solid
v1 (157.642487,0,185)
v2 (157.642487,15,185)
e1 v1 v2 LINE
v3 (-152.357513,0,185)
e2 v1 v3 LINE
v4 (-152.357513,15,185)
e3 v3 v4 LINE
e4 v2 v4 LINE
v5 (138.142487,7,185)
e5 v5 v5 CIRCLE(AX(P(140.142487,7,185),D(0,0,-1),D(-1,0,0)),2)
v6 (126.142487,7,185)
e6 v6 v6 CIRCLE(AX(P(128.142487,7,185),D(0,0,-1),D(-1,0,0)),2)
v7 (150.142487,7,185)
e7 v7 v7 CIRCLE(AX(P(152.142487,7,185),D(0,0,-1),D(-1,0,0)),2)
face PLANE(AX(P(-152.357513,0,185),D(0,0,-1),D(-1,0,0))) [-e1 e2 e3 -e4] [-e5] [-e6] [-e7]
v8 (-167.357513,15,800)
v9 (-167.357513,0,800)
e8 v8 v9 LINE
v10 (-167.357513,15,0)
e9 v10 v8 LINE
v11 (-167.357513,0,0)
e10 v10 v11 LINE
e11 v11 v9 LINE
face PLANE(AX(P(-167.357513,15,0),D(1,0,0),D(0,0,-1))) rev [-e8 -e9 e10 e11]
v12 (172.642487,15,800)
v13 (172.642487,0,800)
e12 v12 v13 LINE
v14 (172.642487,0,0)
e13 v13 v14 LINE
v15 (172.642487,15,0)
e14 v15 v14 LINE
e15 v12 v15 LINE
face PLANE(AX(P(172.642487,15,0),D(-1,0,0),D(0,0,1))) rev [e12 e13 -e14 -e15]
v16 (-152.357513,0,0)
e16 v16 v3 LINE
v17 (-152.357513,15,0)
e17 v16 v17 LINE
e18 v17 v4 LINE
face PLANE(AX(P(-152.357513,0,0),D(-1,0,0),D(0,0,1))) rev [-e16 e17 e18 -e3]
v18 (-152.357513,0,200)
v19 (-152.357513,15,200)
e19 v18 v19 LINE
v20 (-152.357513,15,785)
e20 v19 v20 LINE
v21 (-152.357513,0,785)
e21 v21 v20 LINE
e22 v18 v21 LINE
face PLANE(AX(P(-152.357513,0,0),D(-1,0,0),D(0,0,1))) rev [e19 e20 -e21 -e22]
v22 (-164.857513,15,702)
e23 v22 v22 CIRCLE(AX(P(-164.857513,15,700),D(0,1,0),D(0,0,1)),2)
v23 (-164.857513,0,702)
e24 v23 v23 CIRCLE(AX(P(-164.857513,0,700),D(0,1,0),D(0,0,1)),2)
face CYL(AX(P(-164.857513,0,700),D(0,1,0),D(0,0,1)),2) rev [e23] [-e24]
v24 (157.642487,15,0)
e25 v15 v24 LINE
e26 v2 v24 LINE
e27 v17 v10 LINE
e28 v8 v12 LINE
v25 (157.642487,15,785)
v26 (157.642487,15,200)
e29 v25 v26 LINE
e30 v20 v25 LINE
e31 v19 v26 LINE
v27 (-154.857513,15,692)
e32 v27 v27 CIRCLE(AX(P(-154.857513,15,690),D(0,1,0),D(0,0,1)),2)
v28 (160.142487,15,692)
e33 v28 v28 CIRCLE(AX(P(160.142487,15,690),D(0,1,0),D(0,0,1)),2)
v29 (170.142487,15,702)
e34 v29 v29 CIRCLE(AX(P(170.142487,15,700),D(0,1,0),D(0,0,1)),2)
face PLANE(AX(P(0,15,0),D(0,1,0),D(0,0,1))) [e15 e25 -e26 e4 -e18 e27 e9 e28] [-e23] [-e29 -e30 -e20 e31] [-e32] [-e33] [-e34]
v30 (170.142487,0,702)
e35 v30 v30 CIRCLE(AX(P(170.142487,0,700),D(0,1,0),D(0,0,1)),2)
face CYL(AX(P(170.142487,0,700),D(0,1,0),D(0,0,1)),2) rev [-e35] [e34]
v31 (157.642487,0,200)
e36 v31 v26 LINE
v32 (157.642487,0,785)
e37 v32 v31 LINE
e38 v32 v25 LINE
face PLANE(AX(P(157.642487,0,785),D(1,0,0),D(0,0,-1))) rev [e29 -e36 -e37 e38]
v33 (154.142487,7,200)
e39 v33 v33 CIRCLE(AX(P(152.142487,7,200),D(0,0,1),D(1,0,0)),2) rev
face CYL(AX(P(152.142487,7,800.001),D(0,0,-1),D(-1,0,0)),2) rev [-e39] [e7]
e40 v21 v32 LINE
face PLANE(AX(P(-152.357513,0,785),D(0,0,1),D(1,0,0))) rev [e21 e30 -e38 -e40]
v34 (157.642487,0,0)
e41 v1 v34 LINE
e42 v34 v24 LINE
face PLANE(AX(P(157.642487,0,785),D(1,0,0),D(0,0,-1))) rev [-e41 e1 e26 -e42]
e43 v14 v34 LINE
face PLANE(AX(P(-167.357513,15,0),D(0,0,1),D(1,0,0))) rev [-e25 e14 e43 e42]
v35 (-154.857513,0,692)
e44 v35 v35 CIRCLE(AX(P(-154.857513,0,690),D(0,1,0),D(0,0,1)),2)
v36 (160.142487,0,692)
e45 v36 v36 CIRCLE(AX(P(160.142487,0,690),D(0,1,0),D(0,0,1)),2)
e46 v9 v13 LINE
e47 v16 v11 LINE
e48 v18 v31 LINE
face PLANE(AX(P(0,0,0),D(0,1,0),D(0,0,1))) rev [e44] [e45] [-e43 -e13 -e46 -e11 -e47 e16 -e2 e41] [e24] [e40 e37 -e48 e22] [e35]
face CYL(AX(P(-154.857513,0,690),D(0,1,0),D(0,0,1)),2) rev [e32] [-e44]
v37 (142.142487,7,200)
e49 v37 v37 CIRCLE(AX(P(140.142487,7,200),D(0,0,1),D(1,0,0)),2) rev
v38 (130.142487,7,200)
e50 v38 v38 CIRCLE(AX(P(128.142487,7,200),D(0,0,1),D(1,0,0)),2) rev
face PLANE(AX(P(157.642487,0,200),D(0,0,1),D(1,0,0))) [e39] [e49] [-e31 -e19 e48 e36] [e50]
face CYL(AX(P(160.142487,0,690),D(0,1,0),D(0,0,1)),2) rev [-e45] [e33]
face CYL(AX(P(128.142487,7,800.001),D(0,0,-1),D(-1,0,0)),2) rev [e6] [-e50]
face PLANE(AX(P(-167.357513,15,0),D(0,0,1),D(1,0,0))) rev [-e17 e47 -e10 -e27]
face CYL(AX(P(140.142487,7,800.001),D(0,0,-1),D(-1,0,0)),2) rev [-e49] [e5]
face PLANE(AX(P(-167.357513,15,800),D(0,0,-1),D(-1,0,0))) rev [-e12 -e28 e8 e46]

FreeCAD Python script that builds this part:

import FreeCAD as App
import Part
import Sketcher


def add_polygon(sketch, points):
    """Adds a closed chain of lines whose ends are joined by coincident constraints."""
    first, n = sketch.GeometryCount, len(points)
    for a, b in zip(points, points[1:] + points[:1]):
        sketch.addGeometry(Part.LineSegment(App.Vector(*a, 0), App.Vector(*b, 0)), False)
    for i in range(n):
        sketch.addConstraint(Sketcher.Constraint("Coincident", first + i, 2, first + (i + 1) % n, 1))

doc = App.newDocument("Part")
body = doc.addObject("PartDesign::Body", "Body")

# Sketch on XZ plane
sketch1 = doc.addObject("Sketcher::SketchObject", "Sketch")
body.addObject(sketch1)
sketch1.AttachmentSupport = (doc.XZ_Plane, [""])
sketch1.MapMode = "FlatFace"
add_polygon(sketch1, [(-167, 0), (-167, 800), (173, 800), (173, 0)])  # lines 0-3
sketch1.addConstraint([
    Sketcher.Constraint("Vertical", 0),
    Sketcher.Constraint("Horizontal", 1),
    Sketcher.Constraint("Vertical", 2),
    Sketcher.Constraint("Horizontal", 3),
    Sketcher.Constraint("PointOnObject", 2, 2, -1),
    Sketcher.Constraint("DistanceX", 1, 1, 1, 2, 340.0),
    Sketcher.Constraint("DistanceY", 0, 1, 0, 2, 800.0),
    Sketcher.Constraint("DistanceX", 0, 2, -1, 1, 167.357513),
])
pad1 = doc.addObject("PartDesign::Pad", "Pad")
body.addObject(pad1)
pad1.Profile = sketch1
pad1.Length = 15
pad1.Reversed = True

# Sketch on XZ plane
sketch2 = doc.addObject("Sketcher::SketchObject", "Sketch001")
body.addObject(sketch2)
sketch2.AttachmentSupport = (doc.XZ_Plane, [""])
sketch2.MapMode = "FlatFace"
sketch2.AttachmentOffset = App.Placement(App.Vector(0, 0, -15), App.Rotation())
add_polygon(sketch2, [(-152, 0), (-152, 785), (158, 785), (158, 0)])  # lines 0-3
sketch2.addConstraint([
    Sketcher.Constraint("Vertical", 0),
    Sketcher.Constraint("Horizontal", 1),
    Sketcher.Constraint("Vertical", 2),
    Sketcher.Constraint("Horizontal", 3),
    Sketcher.Constraint("PointOnObject", 2, 2, -1),
    Sketcher.Constraint("DistanceX", 1, 1, 1, 2, 310.0),
    Sketcher.Constraint("DistanceY", 0, 1, 0, 2, 785.0),
    Sketcher.Constraint("DistanceX", 0, 2, -1, 1, 152.357513),
])
pocket1 = doc.addObject("PartDesign::Pocket", "Pocket")
body.addObject(pocket1)
pocket1.Profile = sketch2
pocket1.Length = 15
pocket1.Reversed = True

# Sketch on XZ plane
sketch3 = doc.addObject("Sketcher::SketchObject", "Sketch002")
body.addObject(sketch3)
sketch3.AttachmentSupport = (doc.XZ_Plane, [""])
sketch3.MapMode = "FlatFace"
sketch3.AttachmentOffset = App.Placement(App.Vector(0, 0, -15), App.Rotation())
add_polygon(sketch3, [(-152, 185), (-152, 200), (158, 200), (158, 185)])  # lines 0-3
sketch3.addConstraint([
    Sketcher.Constraint("Vertical", 0),
    Sketcher.Constraint("Horizontal", 1),
    Sketcher.Constraint("Vertical", 2),
    Sketcher.Constraint("Horizontal", 3),
    Sketcher.Constraint("DistanceX", 1, 1, 1, 2, 310.0),
    Sketcher.Constraint("DistanceY", 0, 1, 0, 2, 15.0),
    Sketcher.Constraint("DistanceY", -1, 1, 0, 2, 200.0),
    Sketcher.Constraint("DistanceX", 0, 2, -1, 1, 152.357513),
])
pad2 = doc.addObject("PartDesign::Pad", "Pad001")
body.addObject(pad2)
pad2.Profile = sketch3
pad2.Length = 15

# Sketch on XY plane
sketch4 = doc.addObject("Sketcher::SketchObject", "Sketch003")
body.addObject(sketch4)
sketch4.AttachmentSupport = (doc.XY_Plane, [""])
sketch4.MapMode = "FlatFace"
sketch4.AttachmentOffset = App.Placement(App.Vector(0, 0, 185), App.Rotation())
sketch4.addGeometry(Part.Circle(App.Vector(152.1, 7, 0), App.Vector(0, 0, 1), 2), False)
sketch4.addConstraint([
    Sketcher.Constraint("Diameter", 0, 4.0),
    Sketcher.Constraint("DistanceY", -1, 1, 0, 3, 7.0),
    Sketcher.Constraint("DistanceX", -1, 1, 0, 3, 152.142487),
])
pocket2 = doc.addObject("PartDesign::Pocket", "Pocket001")
body.addObject(pocket2)
pocket2.Profile = sketch4
pocket2.Type = "UpToFirst"
pocket2.Reversed = True

# Sketch on XY plane
sketch5 = doc.addObject("Sketcher::SketchObject", "Sketch004")
body.addObject(sketch5)
sketch5.AttachmentSupport = (doc.XY_Plane, [""])
sketch5.MapMode = "FlatFace"
sketch5.AttachmentOffset = App.Placement(App.Vector(0, 0, 185), App.Rotation())
sketch5.addGeometry(Part.Circle(App.Vector(140.1, 7, 0), App.Vector(0, 0, 1), 2), False)
sketch5.addConstraint([
    Sketcher.Constraint("Diameter", 0, 4.0),
    Sketcher.Constraint("DistanceY", -1, 1, 0, 3, 7.0),
    Sketcher.Constraint("DistanceX", -1, 1, 0, 3, 140.142487),
])
pocket3 = doc.addObject("PartDesign::Pocket", "Pocket002")
body.addObject(pocket3)
pocket3.Profile = sketch5
pocket3.Type = "UpToFirst"
pocket3.Reversed = True

# Sketch on XY plane
sketch6 = doc.addObject("Sketcher::SketchObject", "Sketch005")
body.addObject(sketch6)
sketch6.AttachmentSupport = (doc.XY_Plane, [""])
sketch6.MapMode = "FlatFace"
sketch6.AttachmentOffset = App.Placement(App.Vector(0, 0, 185), App.Rotation())
sketch6.addGeometry(Part.Circle(App.Vector(128.1, 7, 0), App.Vector(0, 0, 1), 2), False)
sketch6.addConstraint([
    Sketcher.Constraint("Diameter", 0, 4.0),
    Sketcher.Constraint("DistanceY", -1, 1, 0, 3, 7.0),
    Sketcher.Constraint("DistanceX", -1, 1, 0, 3, 128.142487),
])
pocket4 = doc.addObject("PartDesign::Pocket", "Pocket003")
body.addObject(pocket4)
pocket4.Profile = sketch6
pocket4.Type = "UpToFirst"
pocket4.Reversed = True

# Sketch on XZ plane
sketch7 = doc.addObject("Sketcher::SketchObject", "Sketch006")
body.addObject(sketch7)
sketch7.AttachmentSupport = (doc.XZ_Plane, [""])
sketch7.MapMode = "FlatFace"
sketch7.AttachmentOffset = App.Placement(App.Vector(0, 0, -15), App.Rotation())
sketch7.addGeometry([
    Part.Circle(App.Vector(160.1, 690, 0), App.Vector(0, 0, 1), 2),
    Part.Circle(App.Vector(170.1, 700, 0), App.Vector(0, 0, 1), 2),
    Part.Circle(App.Vector(-154.9, 690, 0), App.Vector(0, 0, 1), 2),
    Part.Circle(App.Vector(-164.9, 700, 0), App.Vector(0, 0, 1), 2),
], False)
sketch7.addConstraint([
    Sketcher.Constraint("Equal", 0, 1),
    Sketcher.Constraint("Equal", 1, 2),
    Sketcher.Constraint("Equal", 2, 3),
    Sketcher.Constraint("Horizontal", 0, 3, 2, 3),
    Sketcher.Constraint("Horizontal", 1, 3, 3, 3),
    Sketcher.Constraint("Diameter", 0, 4.0),
    Sketcher.Constraint("DistanceY", -1, 1, 0, 3, 690.0),
    Sketcher.Constraint("DistanceY", -1, 1, 1, 3, 700.0),
    Sketcher.Constraint("DistanceX", 0, 3, 1, 3, 10.0),
    Sketcher.Constraint("DistanceX", 2, 3, 0, 3, 315.0),
    Sketcher.Constraint("DistanceX", 3, 3, 2, 3, 10.0),
    Sketcher.Constraint("DistanceX", -1, 1, 0, 3, 160.142487),
])
pocket5 = doc.addObject("PartDesign::Pocket", "Pocket004")
body.addObject(pocket5)
pocket5.Profile = sketch7
pocket5.Type = "ThroughAll"
pocket5.Reversed = True

doc.recompute()
